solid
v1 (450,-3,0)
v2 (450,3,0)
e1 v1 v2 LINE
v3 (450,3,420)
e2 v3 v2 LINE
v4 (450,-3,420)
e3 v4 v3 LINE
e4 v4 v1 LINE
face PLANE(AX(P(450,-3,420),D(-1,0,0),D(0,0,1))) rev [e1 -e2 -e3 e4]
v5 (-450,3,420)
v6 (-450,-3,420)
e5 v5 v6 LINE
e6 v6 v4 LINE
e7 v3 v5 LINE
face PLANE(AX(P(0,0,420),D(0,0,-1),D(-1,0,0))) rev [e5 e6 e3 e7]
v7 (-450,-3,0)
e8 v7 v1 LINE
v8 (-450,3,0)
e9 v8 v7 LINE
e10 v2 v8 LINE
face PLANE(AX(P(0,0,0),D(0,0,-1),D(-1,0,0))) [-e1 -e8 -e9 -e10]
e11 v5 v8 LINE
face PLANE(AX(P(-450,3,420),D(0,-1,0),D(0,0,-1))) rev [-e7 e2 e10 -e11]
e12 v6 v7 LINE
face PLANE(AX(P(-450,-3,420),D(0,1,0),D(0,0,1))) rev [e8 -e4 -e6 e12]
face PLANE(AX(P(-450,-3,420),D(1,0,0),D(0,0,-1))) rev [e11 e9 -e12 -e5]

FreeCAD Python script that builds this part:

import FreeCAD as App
import Part
import Sketcher


def add_polygon(sketch, points):
    """Adds a closed chain of lines whose ends are joined by coincident constraints."""
    first, n = sketch.GeometryCount, len(points)
    for a, b in zip(points, points[1:] + points[:1]):
        sketch.addGeometry(Part.LineSegment(App.Vector(*a, 0), App.Vector(*b, 0)), False)
    for i in range(n):
        sketch.addConstraint(Sketcher.Constraint("Coincident", first + i, 2, first + (i + 1) % n, 1))

doc = App.newDocument("Part")
body = doc.addObject("PartDesign::Body", "Body")

# Sketch on XY plane
sketch1 = doc.addObject("Sketcher::SketchObject", "Sketch")
body.addObject(sketch1)
sketch1.AttachmentSupport = (doc.XY_Plane, [""])
sketch1.MapMode = "FlatFace"
add_polygon(sketch1, [(-450, 3), (-450, -3), (450, -3), (450, 3)])  # lines 0-3
sketch1.addConstraint(Sketcher.Constraint("Vertical", 0))
sketch1.addConstraint(Sketcher.Constraint("Horizontal", 1))
sketch1.addConstraint(Sketcher.Constraint("Vertical", 2))
sketch1.addConstraint(Sketcher.Constraint("Horizontal", 3))
sketch1.addConstraint(Sketcher.Constraint("Symmetric", 0, 2, 2, 2, -1, 1))
sketch1.addConstraint(Sketcher.Constraint("DistanceX", 1, 1, 1, 2, 900.0))
sketch1.addConstraint(Sketcher.Constraint("DistanceY", 0, 2, 0, 1, 6.0))
pad1 = doc.addObject("PartDesign::Pad", "Pad")
body.addObject(pad1)
pad1.Profile = sketch1
pad1.Length = 420

doc.recompute()
